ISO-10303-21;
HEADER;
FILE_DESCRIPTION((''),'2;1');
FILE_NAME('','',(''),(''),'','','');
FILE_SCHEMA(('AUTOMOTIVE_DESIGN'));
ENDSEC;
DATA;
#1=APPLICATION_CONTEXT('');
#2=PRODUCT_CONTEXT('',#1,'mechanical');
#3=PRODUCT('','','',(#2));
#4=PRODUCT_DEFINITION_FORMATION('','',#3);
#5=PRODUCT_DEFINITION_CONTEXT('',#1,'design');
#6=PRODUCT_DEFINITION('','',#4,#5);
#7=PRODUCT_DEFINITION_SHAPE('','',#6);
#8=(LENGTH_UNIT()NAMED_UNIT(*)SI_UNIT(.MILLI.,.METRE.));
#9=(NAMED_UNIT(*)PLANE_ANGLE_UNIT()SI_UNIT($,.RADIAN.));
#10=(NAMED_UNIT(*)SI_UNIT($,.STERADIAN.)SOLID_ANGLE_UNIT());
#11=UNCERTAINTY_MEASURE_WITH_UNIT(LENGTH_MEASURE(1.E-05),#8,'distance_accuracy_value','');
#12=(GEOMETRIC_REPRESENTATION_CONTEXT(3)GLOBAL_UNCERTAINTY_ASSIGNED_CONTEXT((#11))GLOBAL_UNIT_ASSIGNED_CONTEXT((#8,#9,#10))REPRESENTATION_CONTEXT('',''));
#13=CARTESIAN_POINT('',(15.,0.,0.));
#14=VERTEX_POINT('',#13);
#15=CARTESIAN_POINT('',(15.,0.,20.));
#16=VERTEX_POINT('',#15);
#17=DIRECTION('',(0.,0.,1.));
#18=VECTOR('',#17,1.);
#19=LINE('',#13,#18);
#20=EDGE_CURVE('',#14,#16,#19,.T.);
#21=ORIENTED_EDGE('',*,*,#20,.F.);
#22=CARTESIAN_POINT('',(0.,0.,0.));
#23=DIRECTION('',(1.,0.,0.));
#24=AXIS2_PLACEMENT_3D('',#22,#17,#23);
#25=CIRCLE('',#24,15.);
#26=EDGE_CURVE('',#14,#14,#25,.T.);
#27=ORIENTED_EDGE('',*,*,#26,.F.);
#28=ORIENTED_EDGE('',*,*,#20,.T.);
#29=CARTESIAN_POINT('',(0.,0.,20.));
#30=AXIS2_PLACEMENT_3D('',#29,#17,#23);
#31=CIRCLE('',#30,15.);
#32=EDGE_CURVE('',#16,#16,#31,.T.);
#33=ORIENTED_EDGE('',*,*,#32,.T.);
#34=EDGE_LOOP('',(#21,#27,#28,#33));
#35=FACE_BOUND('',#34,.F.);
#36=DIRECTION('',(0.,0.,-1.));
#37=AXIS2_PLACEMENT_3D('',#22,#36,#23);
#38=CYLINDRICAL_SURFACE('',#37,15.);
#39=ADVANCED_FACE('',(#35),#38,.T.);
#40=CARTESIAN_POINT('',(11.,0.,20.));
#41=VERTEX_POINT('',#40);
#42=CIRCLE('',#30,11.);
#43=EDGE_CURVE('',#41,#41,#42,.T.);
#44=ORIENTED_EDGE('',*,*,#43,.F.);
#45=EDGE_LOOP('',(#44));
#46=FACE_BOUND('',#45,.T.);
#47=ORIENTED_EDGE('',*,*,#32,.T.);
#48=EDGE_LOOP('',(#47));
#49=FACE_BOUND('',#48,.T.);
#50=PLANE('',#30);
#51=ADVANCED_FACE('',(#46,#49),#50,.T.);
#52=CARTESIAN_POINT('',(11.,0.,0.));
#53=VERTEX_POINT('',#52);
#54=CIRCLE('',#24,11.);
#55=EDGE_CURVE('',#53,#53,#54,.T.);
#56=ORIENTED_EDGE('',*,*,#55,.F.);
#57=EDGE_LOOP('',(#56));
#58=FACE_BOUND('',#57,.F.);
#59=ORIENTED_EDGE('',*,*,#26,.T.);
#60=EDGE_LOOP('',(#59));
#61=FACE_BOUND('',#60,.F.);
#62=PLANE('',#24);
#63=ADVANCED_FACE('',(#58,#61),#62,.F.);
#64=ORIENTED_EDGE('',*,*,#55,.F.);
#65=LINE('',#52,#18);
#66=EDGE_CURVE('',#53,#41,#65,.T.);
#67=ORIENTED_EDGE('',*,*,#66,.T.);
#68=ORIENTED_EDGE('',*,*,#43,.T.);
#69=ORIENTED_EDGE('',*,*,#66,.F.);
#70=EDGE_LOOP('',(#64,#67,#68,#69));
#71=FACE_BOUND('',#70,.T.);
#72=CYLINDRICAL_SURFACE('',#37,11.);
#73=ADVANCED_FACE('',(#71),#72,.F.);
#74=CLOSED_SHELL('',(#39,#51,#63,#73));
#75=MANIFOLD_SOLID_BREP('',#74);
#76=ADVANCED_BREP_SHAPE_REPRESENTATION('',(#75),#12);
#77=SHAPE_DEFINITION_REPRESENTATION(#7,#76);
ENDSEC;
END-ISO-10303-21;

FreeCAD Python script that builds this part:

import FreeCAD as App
import Part
import Sketcher
from FreeCAD import Vector

doc = App.newDocument("Part")
body = doc.addObject("PartDesign::Body", "Body")

# Sketch on XY plane
sketch1 = body.newObject("Sketcher::SketchObject", "Sketch")
sketch1.AttachmentSupport = (doc.getObject("XY_Plane"), [""])
sketch1.MapMode = "FlatFace"
sketch1.addGeometry([
    Part.Circle(Vector(0, 0, 0), Vector(0, 0, 1), 15),
    Part.Circle(Vector(0, 0, 0), Vector(0, 0, 1), 11),
], False)
sketch1.addConstraint([
    Sketcher.Constraint("Coincident", 0, 3, -1, 1),
    Sketcher.Constraint("Coincident", 1, 3, -1, 1),
    Sketcher.Constraint("Diameter", 0, 30.0),
    Sketcher.Constraint("Diameter", 1, 22.0),
])
pad1 = body.newObject("PartDesign::Pad", "Pad")
pad1.Profile = sketch1
pad1.Length = 20

doc.recompute()
